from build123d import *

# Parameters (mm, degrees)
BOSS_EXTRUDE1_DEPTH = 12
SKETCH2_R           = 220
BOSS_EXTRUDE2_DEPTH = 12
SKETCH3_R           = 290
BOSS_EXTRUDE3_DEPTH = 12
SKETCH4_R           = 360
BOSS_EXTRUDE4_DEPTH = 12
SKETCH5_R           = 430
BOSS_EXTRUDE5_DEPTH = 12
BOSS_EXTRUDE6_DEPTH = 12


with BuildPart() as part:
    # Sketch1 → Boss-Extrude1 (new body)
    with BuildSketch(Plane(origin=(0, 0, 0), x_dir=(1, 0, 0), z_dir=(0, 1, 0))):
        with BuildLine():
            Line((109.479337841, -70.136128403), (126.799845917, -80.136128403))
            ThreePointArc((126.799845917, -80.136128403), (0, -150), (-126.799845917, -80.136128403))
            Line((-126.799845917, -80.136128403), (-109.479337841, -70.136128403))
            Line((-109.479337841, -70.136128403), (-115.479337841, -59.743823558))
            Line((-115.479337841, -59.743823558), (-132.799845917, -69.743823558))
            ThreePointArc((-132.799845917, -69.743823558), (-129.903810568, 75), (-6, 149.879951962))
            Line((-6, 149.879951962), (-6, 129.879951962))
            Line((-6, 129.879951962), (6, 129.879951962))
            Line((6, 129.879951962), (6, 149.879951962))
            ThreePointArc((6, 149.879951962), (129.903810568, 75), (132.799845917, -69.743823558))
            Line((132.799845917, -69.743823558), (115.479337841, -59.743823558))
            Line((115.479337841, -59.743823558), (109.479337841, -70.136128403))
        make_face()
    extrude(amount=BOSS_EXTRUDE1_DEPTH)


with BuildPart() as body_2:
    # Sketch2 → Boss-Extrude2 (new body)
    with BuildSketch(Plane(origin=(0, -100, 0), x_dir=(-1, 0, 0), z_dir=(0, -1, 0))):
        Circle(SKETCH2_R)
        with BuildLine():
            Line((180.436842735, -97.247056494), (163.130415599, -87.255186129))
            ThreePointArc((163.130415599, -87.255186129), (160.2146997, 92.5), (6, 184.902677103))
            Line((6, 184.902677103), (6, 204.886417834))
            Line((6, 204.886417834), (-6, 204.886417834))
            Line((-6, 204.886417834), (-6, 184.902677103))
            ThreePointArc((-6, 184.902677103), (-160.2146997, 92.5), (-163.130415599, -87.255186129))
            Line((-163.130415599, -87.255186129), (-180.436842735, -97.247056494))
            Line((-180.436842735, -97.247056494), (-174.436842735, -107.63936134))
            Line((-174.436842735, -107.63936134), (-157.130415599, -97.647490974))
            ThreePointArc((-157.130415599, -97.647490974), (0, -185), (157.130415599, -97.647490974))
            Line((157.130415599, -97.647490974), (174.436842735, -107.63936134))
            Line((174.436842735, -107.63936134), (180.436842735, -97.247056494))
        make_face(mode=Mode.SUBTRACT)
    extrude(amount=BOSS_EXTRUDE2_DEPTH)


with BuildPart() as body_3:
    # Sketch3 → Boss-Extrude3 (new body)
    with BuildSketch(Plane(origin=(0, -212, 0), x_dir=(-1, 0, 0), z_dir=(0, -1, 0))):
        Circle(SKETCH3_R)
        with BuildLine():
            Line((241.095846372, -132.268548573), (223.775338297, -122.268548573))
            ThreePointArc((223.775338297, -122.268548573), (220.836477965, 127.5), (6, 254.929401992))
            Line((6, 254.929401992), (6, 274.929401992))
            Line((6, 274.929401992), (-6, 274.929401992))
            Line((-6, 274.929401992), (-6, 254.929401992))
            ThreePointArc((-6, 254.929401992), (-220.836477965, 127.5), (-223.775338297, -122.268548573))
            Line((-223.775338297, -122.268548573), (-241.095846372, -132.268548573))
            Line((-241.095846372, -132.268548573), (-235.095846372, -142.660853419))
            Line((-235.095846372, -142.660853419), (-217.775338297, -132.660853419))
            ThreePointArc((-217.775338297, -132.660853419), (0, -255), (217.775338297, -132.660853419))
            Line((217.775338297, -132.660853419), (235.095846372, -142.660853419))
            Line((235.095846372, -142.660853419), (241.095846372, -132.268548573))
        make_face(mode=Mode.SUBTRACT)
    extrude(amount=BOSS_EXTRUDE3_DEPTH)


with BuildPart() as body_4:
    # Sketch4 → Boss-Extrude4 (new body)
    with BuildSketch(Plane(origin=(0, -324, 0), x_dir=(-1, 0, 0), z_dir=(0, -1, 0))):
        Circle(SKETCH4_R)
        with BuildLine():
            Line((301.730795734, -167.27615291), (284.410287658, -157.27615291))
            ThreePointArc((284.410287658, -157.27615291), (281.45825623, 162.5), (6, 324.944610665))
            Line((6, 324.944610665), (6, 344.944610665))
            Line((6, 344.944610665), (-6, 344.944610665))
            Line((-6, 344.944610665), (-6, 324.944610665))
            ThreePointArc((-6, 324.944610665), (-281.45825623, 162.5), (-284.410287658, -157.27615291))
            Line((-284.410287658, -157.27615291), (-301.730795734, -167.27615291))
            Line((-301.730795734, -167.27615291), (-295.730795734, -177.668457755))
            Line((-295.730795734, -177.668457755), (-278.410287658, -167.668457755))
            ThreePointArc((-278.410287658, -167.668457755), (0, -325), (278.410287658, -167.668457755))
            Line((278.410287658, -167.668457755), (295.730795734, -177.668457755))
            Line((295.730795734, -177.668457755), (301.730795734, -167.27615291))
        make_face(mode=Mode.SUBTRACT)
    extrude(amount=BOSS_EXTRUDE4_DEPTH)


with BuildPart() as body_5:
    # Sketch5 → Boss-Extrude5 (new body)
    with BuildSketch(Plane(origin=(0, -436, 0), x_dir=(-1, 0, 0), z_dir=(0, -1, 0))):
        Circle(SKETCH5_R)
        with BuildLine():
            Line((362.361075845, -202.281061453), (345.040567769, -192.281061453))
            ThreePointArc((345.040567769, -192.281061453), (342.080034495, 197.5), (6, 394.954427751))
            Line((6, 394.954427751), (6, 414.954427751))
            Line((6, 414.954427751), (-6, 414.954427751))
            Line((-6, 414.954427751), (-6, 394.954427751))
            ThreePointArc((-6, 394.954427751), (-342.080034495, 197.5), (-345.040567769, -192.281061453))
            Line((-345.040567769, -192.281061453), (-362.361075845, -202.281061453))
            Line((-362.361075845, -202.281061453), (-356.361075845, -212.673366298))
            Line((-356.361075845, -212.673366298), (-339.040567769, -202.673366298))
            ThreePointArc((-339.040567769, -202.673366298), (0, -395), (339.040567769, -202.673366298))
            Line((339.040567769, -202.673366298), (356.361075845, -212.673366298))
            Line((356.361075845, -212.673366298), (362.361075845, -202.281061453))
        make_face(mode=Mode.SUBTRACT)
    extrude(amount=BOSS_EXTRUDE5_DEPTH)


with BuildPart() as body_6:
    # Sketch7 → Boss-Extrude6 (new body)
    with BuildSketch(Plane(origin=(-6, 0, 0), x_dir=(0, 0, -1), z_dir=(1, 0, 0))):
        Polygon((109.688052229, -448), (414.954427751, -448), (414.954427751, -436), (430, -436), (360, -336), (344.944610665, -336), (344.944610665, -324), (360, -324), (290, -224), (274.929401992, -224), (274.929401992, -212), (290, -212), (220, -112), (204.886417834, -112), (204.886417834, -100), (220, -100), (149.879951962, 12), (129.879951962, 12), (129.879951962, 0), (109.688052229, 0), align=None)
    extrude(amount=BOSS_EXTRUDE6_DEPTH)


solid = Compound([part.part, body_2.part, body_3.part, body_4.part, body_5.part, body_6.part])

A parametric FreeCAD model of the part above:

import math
import FreeCAD as App
import Part
import Sketcher

V = App.Vector
Q = App.Units.Quantity


def add_polygon(sketch, points):
    """Adds a closed chain of lines whose ends are joined by coincident constraints."""
    first, n = sketch.GeometryCount, len(points)
    for a, b in zip(points, points[1:] + points[:1]):
        sketch.addGeometry(Part.LineSegment(App.Vector(*a, 0), App.Vector(*b, 0)), False)
    for i in range(n):
        sketch.addConstraint(Sketcher.Constraint("Coincident", first + i, 2, first + (i + 1) % n, 1))

doc = App.newDocument("Part")
body = doc.addObject("PartDesign::Body", "Body")

# Sketch on XZ plane
sketch1 = doc.addObject("Sketcher::SketchObject", "Sketch")
body.addObject(sketch1)
sketch1.AttachmentSupport = (doc.XZ_Plane, [""])
sketch1.MapMode = "FlatFace"
sketch1.addGeometry([
    Part.LineSegment(V(127, 80, 0), V(109, 70, 0)),  # 0
    Part.LineSegment(V(109, 70, 0), V(115, 60, 0)),  # 1
    Part.LineSegment(V(115, 60, 0), V(133, 70, 0)),  # 2
    Part.ArcOfCircle(Part.Circle(V(0, 0, 0), V(0, 0, 1), 150), math.radians(-88), math.radians(28)),  # 3
    Part.LineSegment(V(6, -150, 0), V(6, -130, 0)),  # 4
    Part.LineSegment(V(6, -130, 0), V(-6, -130, 0)),  # 5
    Part.LineSegment(V(-6, -130, 0), V(-6, -150, 0)),  # 6
    Part.ArcOfCircle(Part.Circle(V(0, 0, 0), V(0, 0, 1), 150), math.radians(152), math.radians(268)),  # 7
    Part.LineSegment(V(-133, 70, 0), V(-115, 60, 0)),  # 8
    Part.LineSegment(V(-115, 60, 0), V(-109, 70, 0)),  # 9
    Part.LineSegment(V(-109, 70, 0), V(-127, 80, 0)),  # 10
    Part.ArcOfCircle(Part.Circle(V(0, 0, 0), V(0, 0, 1), 150), math.radians(32), math.radians(148)),  # 11
], False)
sketch1.addConstraint([
    Sketcher.Constraint("Coincident", 0, 2, 1, 1),
    Sketcher.Constraint("Coincident", 1, 2, 2, 1),
    Sketcher.Constraint("Coincident", 2, 2, 3, 2),
    Sketcher.Constraint("Coincident", 3, 1, 4, 1),
    Sketcher.Constraint("Coincident", 4, 2, 5, 1),
    Sketcher.Constraint("Coincident", 5, 2, 6, 1),
    Sketcher.Constraint("Coincident", 6, 2, 7, 2),
    Sketcher.Constraint("Coincident", 7, 1, 8, 1),
    Sketcher.Constraint("Coincident", 8, 2, 9, 1),
    Sketcher.Constraint("Coincident", 9, 2, 10, 1),
    Sketcher.Constraint("Coincident", 10, 2, 11, 2),
    Sketcher.Constraint("Coincident", 11, 1, 0, 1),
    Sketcher.Constraint("Vertical", 4),
    Sketcher.Constraint("Horizontal", 5),
    Sketcher.Constraint("Vertical", 6),
    Sketcher.Constraint("Coincident", 3, 3, -1, 1),
    Sketcher.Constraint("Coincident", 7, 3, -1, 1),
    Sketcher.Constraint("Coincident", 11, 3, -1, 1),
    Sketcher.Constraint("Equal", 3, 7),
    Sketcher.Constraint("Equal", 7, 11),
    Sketcher.Constraint("Symmetric", 1, 2, 8, 2, -2),
    Sketcher.Constraint("Symmetric", 0, 2, 9, 2, -2),
    Sketcher.Constraint("Perpendicular", 0, 1),
    Sketcher.Constraint("Perpendicular", 1, 2),
    Sketcher.Constraint("Perpendicular", 8, 9),
    Sketcher.Constraint("Perpendicular", 9, 10),
    Sketcher.Constraint("Horizontal", 3, 1, 6, 2),
    Sketcher.Constraint("Equal", 0, 2),
    Sketcher.Constraint("Radius", 3, Q("150 mm")),
    Sketcher.Constraint("DistanceX", 5, 2, 5, 1, Q("12 mm")),
    Sketcher.Constraint("DistanceY", 4, 1, 4, 2, Q("20 mm")),
    Sketcher.Constraint("Angle", 0, Q("-150 deg")),
    Sketcher.Constraint("Distance", 0, Q("20 mm")),
    Sketcher.Constraint("Distance", 1, Q("12 mm")),
])
pad1 = doc.addObject("PartDesign::Pad", "Pad")
body.addObject(pad1)
pad1.Profile = sketch1
pad1.Length = 12
pad1.Reversed = True
body2 = doc.addObject("PartDesign::Body", "Body001")

# Sketch on XZ plane
sketch2 = doc.addObject("Sketcher::SketchObject", "Sketch001")
body2.addObject(sketch2)
sketch2.AttachmentSupport = (doc.getObject("XZ_Plane001"), [""])
sketch2.MapMode = "FlatFace"
sketch2.AttachmentOffset = App.Placement(V(0, 0, 100), App.Rotation())
sketch2.addGeometry([
    Part.Circle(V(0, 0, 0), V(0, 0, 1), 220),  # 0
    Part.LineSegment(V(-163, 87, 0), V(-180, 97, 0)),  # 1
    Part.LineSegment(V(-180, 97, 0), V(-174, 108, 0)),  # 2
    Part.LineSegment(V(-174, 108, 0), V(-157, 98, 0)),  # 3
    Part.ArcOfCircle(Part.Circle(V(0, 0, 0), V(0, 0, 1), 185), math.radians(32), math.radians(148)),  # 4
    Part.LineSegment(V(157, 98, 0), V(174, 108, 0)),  # 5
    Part.LineSegment(V(174, 108, 0), V(180, 97, 0)),  # 6
    Part.LineSegment(V(180, 97, 0), V(163, 87, 0)),  # 7
    Part.ArcOfCircle(Part.Circle(V(0, 0, 0), V(0, 0, 1), 185), math.radians(-88), math.radians(28)),  # 8
    Part.LineSegment(V(6, -185, 0), V(6, -205, 0)),  # 9
    Part.LineSegment(V(6, -205, 0), V(-6, -205, 0)),  # 10
    Part.LineSegment(V(-6, -205, 0), V(-6, -185, 0)),  # 11
    Part.ArcOfCircle(Part.Circle(V(0, 0, 0), V(0, 0, 1), 185), math.radians(152), math.radians(268)),  # 12
], False)
sketch2.addConstraint([
    Sketcher.Constraint("Coincident", 1, 2, 2, 1),
    Sketcher.Constraint("Coincident", 2, 2, 3, 1),
    Sketcher.Constraint("Coincident", 3, 2, 4, 2),
    Sketcher.Constraint("Coincident", 4, 1, 5, 1),
    Sketcher.Constraint("Coincident", 5, 2, 6, 1),
    Sketcher.Constraint("Coincident", 6, 2, 7, 1),
    Sketcher.Constraint("Coincident", 7, 2, 8, 2),
    Sketcher.Constraint("Coincident", 8, 1, 9, 1),
    Sketcher.Constraint("Coincident", 9, 2, 10, 1),
    Sketcher.Constraint("Coincident", 10, 2, 11, 1),
    Sketcher.Constraint("Coincident", 11, 2, 12, 2),
    Sketcher.Constraint("Coincident", 12, 1, 1, 1),
    Sketcher.Constraint("Vertical", 9),
    Sketcher.Constraint("Horizontal", 10),
    Sketcher.Constraint("Vertical", 11),
    Sketcher.Constraint("Coincident", 0, 3, -1, 1),
    Sketcher.Constraint("Coincident", 4, 3, -1, 1),
    Sketcher.Constraint("Coincident", 8, 3, -1, 1),
    Sketcher.Constraint("Coincident", 12, 3, -1, 1),
    Sketcher.Constraint("Equal", 4, 8),
    Sketcher.Constraint("Equal", 8, 12),
    Sketcher.Constraint("Symmetric", 2, 2, 5, 2, -2),
    Sketcher.Constraint("Symmetric", 1, 2, 6, 2, -2),
    Sketcher.Constraint("Perpendicular", 1, 2),
    Sketcher.Constraint("Perpendicular", 2, 3),
    Sketcher.Constraint("Perpendicular", 5, 6),
    Sketcher.Constraint("Perpendicular", 6, 7),
    Sketcher.Constraint("Horizontal", 8, 1, 11, 2),
    Sketcher.Constraint("Equal", 1, 3),
    Sketcher.Constraint("Diameter", 0, Q("440 mm")),
    Sketcher.Constraint("Radius", 4, Q("185 mm")),
    Sketcher.Constraint("DistanceX", 10, 2, 10, 1, Q("12 mm")),
    Sketcher.Constraint("Angle", 1, Q("150 deg")),
    Sketcher.Constraint("Distance", 2, Q("12 mm")),
    Sketcher.Constraint("DistanceY", 9, 2, 9, 1, Q("19.983741 mm")),
    Sketcher.Constraint("Distance", 1, Q("19.983741 mm")),
])
pad2 = doc.addObject("PartDesign::Pad", "Pad001")
body2.addObject(pad2)
pad2.Profile = sketch2
pad2.Length = 12
body3 = doc.addObject("PartDesign::Body", "Body002")

# Sketch on XZ plane
sketch3 = doc.addObject("Sketcher::SketchObject", "Sketch002")
body3.addObject(sketch3)
sketch3.AttachmentSupport = (doc.getObject("XZ_Plane002"), [""])
sketch3.MapMode = "FlatFace"
sketch3.AttachmentOffset = App.Placement(V(0, 0, 212), App.Rotation())
sketch3.addGeometry([
    Part.Circle(V(0, 0, 0), V(0, 0, 1), 290),  # 0
    Part.LineSegment(V(-224, 122, 0), V(-241, 132, 0)),  # 1
    Part.LineSegment(V(-241, 132, 0), V(-235, 143, 0)),  # 2
    Part.LineSegment(V(-235, 143, 0), V(-218, 133, 0)),  # 3
    Part.ArcOfCircle(Part.Circle(V(0, 0, 0), V(0, 0, 1), 255), math.radians(31), math.radians(149)),  # 4
    Part.LineSegment(V(218, 133, 0), V(235, 143, 0)),  # 5
    Part.LineSegment(V(235, 143, 0), V(241, 132, 0)),  # 6
    Part.LineSegment(V(241, 132, 0), V(224, 122, 0)),  # 7
    Part.ArcOfCircle(Part.Circle(V(0, 0, 0), V(0, 0, 1), 255), math.radians(-89), math.radians(29)),  # 8
    Part.LineSegment(V(6, -255, 0), V(6, -275, 0)),  # 9
    Part.LineSegment(V(6, -275, 0), V(-6, -275, 0)),  # 10
    Part.LineSegment(V(-6, -275, 0), V(-6, -255, 0)),  # 11
    Part.ArcOfCircle(Part.Circle(V(0, 0, 0), V(0, 0, 1), 255), math.radians(151), math.radians(269)),  # 12
], False)
sketch3.addConstraint([
    Sketcher.Constraint("Coincident", 1, 2, 2, 1),
    Sketcher.Constraint("Coincident", 2, 2, 3, 1),
    Sketcher.Constraint("Coincident", 3, 2, 4, 2),
    Sketcher.Constraint("Coincident", 4, 1, 5, 1),
    Sketcher.Constraint("Coincident", 5, 2, 6, 1),
    Sketcher.Constraint("Coincident", 6, 2, 7, 1),
    Sketcher.Constraint("Coincident", 7, 2, 8, 2),
    Sketcher.Constraint("Coincident", 8, 1, 9, 1),
    Sketcher.Constraint("Coincident", 9, 2, 10, 1),
    Sketcher.Constraint("Coincident", 10, 2, 11, 1),
    Sketcher.Constraint("Coincident", 11, 2, 12, 2),
    Sketcher.Constraint("Coincident", 12, 1, 1, 1),
    Sketcher.Constraint("Vertical", 9),
    Sketcher.Constraint("Horizontal", 10),
    Sketcher.Constraint("Vertical", 11),
    Sketcher.Constraint("Coincident", 0, 3, -1, 1),
    Sketcher.Constraint("Coincident", 4, 3, -1, 1),
    Sketcher.Constraint("Coincident", 8, 3, -1, 1),
    Sketcher.Constraint("Coincident", 12, 3, -1, 1),
    Sketcher.Constraint("Equal", 4, 8),
    Sketcher.Constraint("Equal", 8, 12),
    Sketcher.Constraint("Symmetric", 2, 2, 5, 2, -2),
    Sketcher.Constraint("Symmetric", 1, 2, 6, 2, -2),
    Sketcher.Constraint("Perpendicular", 1, 2),
    Sketcher.Constraint("Perpendicular", 2, 3),
    Sketcher.Constraint("Perpendicular", 5, 6),
    Sketcher.Constraint("Perpendicular", 6, 7),
    Sketcher.Constraint("Horizontal", 8, 1, 11, 2),
    Sketcher.Constraint("Equal", 1, 3),
    Sketcher.Constraint("Diameter", 0, Q("580 mm")),
    Sketcher.Constraint("Radius", 4, Q("255 mm")),
    Sketcher.Constraint("DistanceX", 10, 2, 10, 1, Q("12 mm")),
    Sketcher.Constraint("DistanceY", 9, 2, 9, 1, Q("20 mm")),
    Sketcher.Constraint("Angle", 1, Q("150 deg")),
    Sketcher.Constraint("Distance", 1, Q("20 mm")),
    Sketcher.Constraint("Distance", 2, Q("12 mm")),
])
pad3 = doc.addObject("PartDesign::Pad", "Pad002")
body3.addObject(pad3)
pad3.Profile = sketch3
pad3.Length = 12
body4 = doc.addObject("PartDesign::Body", "Body003")

# Sketch on XZ plane
sketch4 = doc.addObject("Sketcher::SketchObject", "Sketch003")
body4.addObject(sketch4)
sketch4.AttachmentSupport = (doc.getObject("XZ_Plane003"), [""])
sketch4.MapMode = "FlatFace"
sketch4.AttachmentOffset = App.Placement(V(0, 0, 324), App.Rotation())
sketch4.addGeometry([
    Part.Circle(V(0, 0, 0), V(0, 0, 1), 360),  # 0
    Part.LineSegment(V(-284, 157, 0), V(-302, 167, 0)),  # 1
    Part.LineSegment(V(-302, 167, 0), V(-296, 178, 0)),  # 2
    Part.LineSegment(V(-296, 178, 0), V(-278, 168, 0)),  # 3
    Part.ArcOfCircle(Part.Circle(V(0, 0, 0), V(0, 0, 1), 325), math.radians(31), math.radians(149)),  # 4
    Part.LineSegment(V(278, 168, 0), V(296, 178, 0)),  # 5
    Part.LineSegment(V(296, 178, 0), V(302, 167, 0)),  # 6
    Part.LineSegment(V(302, 167, 0), V(284, 157, 0)),  # 7
    Part.ArcOfCircle(Part.Circle(V(0, 0, 0), V(0, 0, 1), 325), math.radians(-89), math.radians(29)),  # 8
    Part.LineSegment(V(6, -325, 0), V(6, -345, 0)),  # 9
    Part.LineSegment(V(6, -345, 0), V(-6, -345, 0)),  # 10
    Part.LineSegment(V(-6, -345, 0), V(-6, -325, 0)),  # 11
    Part.ArcOfCircle(Part.Circle(V(0, 0, 0), V(0, 0, 1), 325), math.radians(151), math.radians(269)),  # 12
], False)
sketch4.addConstraint([
    Sketcher.Constraint("Coincident", 1, 2, 2, 1),
    Sketcher.Constraint("Coincident", 2, 2, 3, 1),
    Sketcher.Constraint("Coincident", 3, 2, 4, 2),
    Sketcher.Constraint("Coincident", 4, 1, 5, 1),
    Sketcher.Constraint("Coincident", 5, 2, 6, 1),
    Sketcher.Constraint("Coincident", 6, 2, 7, 1),
    Sketcher.Constraint("Coincident", 7, 2, 8, 2),
    Sketcher.Constraint("Coincident", 8, 1, 9, 1),
    Sketcher.Constraint("Coincident", 9, 2, 10, 1),
    Sketcher.Constraint("Coincident", 10, 2, 11, 1),
    Sketcher.Constraint("Coincident", 11, 2, 12, 2),
    Sketcher.Constraint("Coincident", 12, 1, 1, 1),
    Sketcher.Constraint("Vertical", 9),
    Sketcher.Constraint("Horizontal", 10),
    Sketcher.Constraint("Vertical", 11),
    Sketcher.Constraint("Coincident", 0, 3, -1, 1),
    Sketcher.Constraint("Coincident", 4, 3, -1, 1),
    Sketcher.Constraint("Coincident", 8, 3, -1, 1),
    Sketcher.Constraint("Coincident", 12, 3, -1, 1),
    Sketcher.Constraint("Equal", 4, 8),
    Sketcher.Constraint("Equal", 8, 12),
    Sketcher.Constraint("Symmetric", 2, 2, 5, 2, -2),
    Sketcher.Constraint("Symmetric", 1, 2, 6, 2, -2),
    Sketcher.Constraint("Perpendicular", 1, 2),
    Sketcher.Constraint("Perpendicular", 2, 3),
    Sketcher.Constraint("Perpendicular", 5, 6),
    Sketcher.Constraint("Perpendicular", 6, 7),
    Sketcher.Constraint("Horizontal", 8, 1, 11, 2),
    Sketcher.Constraint("Equal", 1, 3),
    Sketcher.Constraint("Diameter", 0, Q("720 mm")),
    Sketcher.Constraint("Radius", 4, Q("325 mm")),
    Sketcher.Constraint("DistanceX", 10, 2, 10, 1, Q("12 mm")),
    Sketcher.Constraint("DistanceY", 9, 2, 9, 1, Q("20 mm")),
    Sketcher.Constraint("Angle", 1, Q("150 deg")),
    Sketcher.Constraint("Distance", 1, Q("20 mm")),
    Sketcher.Constraint("Distance", 2, Q("12 mm")),
])
pad4 = doc.addObject("PartDesign::Pad", "Pad003")
body4.addObject(pad4)
pad4.Profile = sketch4
pad4.Length = 12
body5 = doc.addObject("PartDesign::Body", "Body004")

# Sketch on XZ plane
sketch5 = doc.addObject("Sketcher::SketchObject", "Sketch004")
body5.addObject(sketch5)
sketch5.AttachmentSupport = (doc.getObject("XZ_Plane004"), [""])
sketch5.MapMode = "FlatFace"
sketch5.AttachmentOffset = App.Placement(V(0, 0, 436), App.Rotation())
sketch5.addGeometry([
    Part.Circle(V(0, 0, 0), V(0, 0, 1), 430),  # 0
    Part.LineSegment(V(-345, 192, 0), V(-362, 202, 0)),  # 1
    Part.LineSegment(V(-362, 202, 0), V(-356, 213, 0)),  # 2
    Part.LineSegment(V(-356, 213, 0), V(-339, 203, 0)),  # 3
    Part.ArcOfCircle(Part.Circle(V(0, 0, 0), V(0, 0, 1), 395), math.radians(31), math.radians(149)),  # 4
    Part.LineSegment(V(339, 203, 0), V(356, 213, 0)),  # 5
    Part.LineSegment(V(356, 213, 0), V(362, 202, 0)),  # 6
    Part.LineSegment(V(362, 202, 0), V(345, 192, 0)),  # 7
    Part.ArcOfCircle(Part.Circle(V(0, 0, 0), V(0, 0, 1), 395), math.radians(-89), math.radians(29)),  # 8
    Part.LineSegment(V(6, -395, 0), V(6, -415, 0)),  # 9
    Part.LineSegment(V(6, -415, 0), V(-6, -415, 0)),  # 10
    Part.LineSegment(V(-6, -415, 0), V(-6, -395, 0)),  # 11
    Part.ArcOfCircle(Part.Circle(V(0, 0, 0), V(0, 0, 1), 395), math.radians(151), math.radians(269)),  # 12
], False)
sketch5.addConstraint([
    Sketcher.Constraint("Coincident", 1, 2, 2, 1),
    Sketcher.Constraint("Coincident", 2, 2, 3, 1),
    Sketcher.Constraint("Coincident", 3, 2, 4, 2),
    Sketcher.Constraint("Coincident", 4, 1, 5, 1),
    Sketcher.Constraint("Coincident", 5, 2, 6, 1),
    Sketcher.Constraint("Coincident", 6, 2, 7, 1),
    Sketcher.Constraint("Coincident", 7, 2, 8, 2),
    Sketcher.Constraint("Coincident", 8, 1, 9, 1),
    Sketcher.Constraint("Coincident", 9, 2, 10, 1),
    Sketcher.Constraint("Coincident", 10, 2, 11, 1),
    Sketcher.Constraint("Coincident", 11, 2, 12, 2),
    Sketcher.Constraint("Coincident", 12, 1, 1, 1),
    Sketcher.Constraint("Vertical", 9),
    Sketcher.Constraint("Horizontal", 10),
    Sketcher.Constraint("Vertical", 11),
    Sketcher.Constraint("Coincident", 0, 3, -1, 1),
    Sketcher.Constraint("Coincident", 4, 3, -1, 1),
    Sketcher.Constraint("Coincident", 8, 3, -1, 1),
    Sketcher.Constraint("Coincident", 12, 3, -1, 1),
    Sketcher.Constraint("Equal", 4, 8),
    Sketcher.Constraint("Equal", 8, 12),
    Sketcher.Constraint("Symmetric", 2, 2, 5, 2, -2),
    Sketcher.Constraint("Symmetric", 1, 2, 6, 2, -2),
    Sketcher.Constraint("Perpendicular", 1, 2),
    Sketcher.Constraint("Perpendicular", 2, 3),
    Sketcher.Constraint("Perpendicular", 5, 6),
    Sketcher.Constraint("Perpendicular", 6, 7),
    Sketcher.Constraint("Equal", 9, 11),
    Sketcher.Constraint("Equal", 1, 3),
    Sketcher.Constraint("Diameter", 0, Q("860 mm")),
    Sketcher.Constraint("Radius", 4, Q("395 mm")),
    Sketcher.Constraint("DistanceX", 10, 2, 10, 1, Q("12 mm")),
    Sketcher.Constraint("DistanceY", 9, 2, 9, 1, Q("20 mm")),
    Sketcher.Constraint("Angle", 1, Q("150 deg")),
    Sketcher.Constraint("Distance", 1, Q("20 mm")),
    Sketcher.Constraint("Distance", 2, Q("12 mm")),
])
pad5 = doc.addObject("PartDesign::Pad", "Pad004")
body5.addObject(pad5)
pad5.Profile = sketch5
pad5.Length = 12
body6 = doc.addObject("PartDesign::Body", "Body005")

# Sketch on YZ plane
sketch6 = doc.addObject("Sketcher::SketchObject", "Sketch005")
body6.addObject(sketch6)
sketch6.AttachmentSupport = (doc.getObject("YZ_Plane005"), [""])
sketch6.MapMode = "FlatFace"
sketch6.AttachmentOffset = App.Placement(V(0, 0, -6), App.Rotation())
add_polygon(sketch6, [(-448, -110), (-448, -415), (-436, -415), (-436, -430), (-336, -360), (-336, -345), (-324, -345), (-324, -360), (-224, -290), (-224, -275), (-212, -275), (-212, -290), (-112, -220), (-112, -205), (-100, -205), (-100, -220), (12, -150), (12, -130), (0, -130), (0, -110)])  # lines 0-19
sketch6.addConstraint([
    Sketcher.Constraint("Vertical", 0),
    Sketcher.Constraint("Horizontal", 1),
    Sketcher.Constraint("Vertical", 2),
    Sketcher.Constraint("Vertical", 4),
    Sketcher.Constraint("Horizontal", 5),
    Sketcher.Constraint("Vertical", 6),
    Sketcher.Constraint("Vertical", 8),
    Sketcher.Constraint("Horizontal", 9),
    Sketcher.Constraint("Vertical", 10),
    Sketcher.Constraint("Vertical", 12),
    Sketcher.Constraint("Horizontal", 13),
    Sketcher.Constraint("Vertical", 14),
    Sketcher.Constraint("Vertical", 16),
    Sketcher.Constraint("Horizontal", 17),
    Sketcher.Constraint("Vertical", 18),
    Sketcher.Constraint("Horizontal", 19),
    Sketcher.Constraint("PointOnObject", 17, 2, -2),
    Sketcher.Constraint("Parallel", 3, 7),
    Sketcher.Constraint("Parallel", 7, 11),
    Sketcher.Constraint("Horizontal", 3, 2, 6, 2),
    Sketcher.Constraint("Horizontal", 7, 2, 10, 2),
    Sketcher.Constraint("Horizontal", 11, 2, 14, 2),
    Sketcher.Constraint("Equal", 1, 5),
    Sketcher.Constraint("Equal", 5, 9),
    Sketcher.Constraint("Equal", 9, 13),
    Sketcher.Constraint("Equal", 13, 17),
    Sketcher.Constraint("Equal", 3, 7),
    Sketcher.Constraint("Equal", 7, 11),
    Sketcher.Constraint("DistanceX", 1, 1, 1, 2, Q("12 mm")),
    Sketcher.Constraint("DistanceX", 19, 2, 19, 1, Q("448 mm")),
    Sketcher.Constraint("DistanceY", 16, 1, 16, 2, Q("20 mm")),
    Sketcher.Constraint("DistanceY", 2, 2, -1, 1, Q("430 mm")),
    Sketcher.Constraint("DistanceX", 3, 2, -1, 1, Q("336 mm")),
    Sketcher.Constraint("DistanceY", 3, 2, -1, 1, Q("360 mm")),
    Sketcher.Constraint("DistanceY", 8, 1, 8, 2, Q("15.070598 mm")),
    Sketcher.Constraint("DistanceY", 18, 1, 18, 2, Q("20.1919 mm")),
    Sketcher.Constraint("Distance", 15, Q("132.1394 mm")),
    Sketcher.Constraint("DistanceY", 4, 1, 4, 2, Q("15.055389 mm")),
    Sketcher.Constraint("DistanceY", 0, 2, 0, 1, Q("305.266376 mm")),
    Sketcher.Constraint("DistanceY", 12, 1, 12, 2, Q("15.113582 mm")),
])
pad6 = doc.addObject("PartDesign::Pad", "Pad005")
body6.addObject(pad6)
pad6.Profile = sketch6
pad6.Length = 12

doc.recompute()
